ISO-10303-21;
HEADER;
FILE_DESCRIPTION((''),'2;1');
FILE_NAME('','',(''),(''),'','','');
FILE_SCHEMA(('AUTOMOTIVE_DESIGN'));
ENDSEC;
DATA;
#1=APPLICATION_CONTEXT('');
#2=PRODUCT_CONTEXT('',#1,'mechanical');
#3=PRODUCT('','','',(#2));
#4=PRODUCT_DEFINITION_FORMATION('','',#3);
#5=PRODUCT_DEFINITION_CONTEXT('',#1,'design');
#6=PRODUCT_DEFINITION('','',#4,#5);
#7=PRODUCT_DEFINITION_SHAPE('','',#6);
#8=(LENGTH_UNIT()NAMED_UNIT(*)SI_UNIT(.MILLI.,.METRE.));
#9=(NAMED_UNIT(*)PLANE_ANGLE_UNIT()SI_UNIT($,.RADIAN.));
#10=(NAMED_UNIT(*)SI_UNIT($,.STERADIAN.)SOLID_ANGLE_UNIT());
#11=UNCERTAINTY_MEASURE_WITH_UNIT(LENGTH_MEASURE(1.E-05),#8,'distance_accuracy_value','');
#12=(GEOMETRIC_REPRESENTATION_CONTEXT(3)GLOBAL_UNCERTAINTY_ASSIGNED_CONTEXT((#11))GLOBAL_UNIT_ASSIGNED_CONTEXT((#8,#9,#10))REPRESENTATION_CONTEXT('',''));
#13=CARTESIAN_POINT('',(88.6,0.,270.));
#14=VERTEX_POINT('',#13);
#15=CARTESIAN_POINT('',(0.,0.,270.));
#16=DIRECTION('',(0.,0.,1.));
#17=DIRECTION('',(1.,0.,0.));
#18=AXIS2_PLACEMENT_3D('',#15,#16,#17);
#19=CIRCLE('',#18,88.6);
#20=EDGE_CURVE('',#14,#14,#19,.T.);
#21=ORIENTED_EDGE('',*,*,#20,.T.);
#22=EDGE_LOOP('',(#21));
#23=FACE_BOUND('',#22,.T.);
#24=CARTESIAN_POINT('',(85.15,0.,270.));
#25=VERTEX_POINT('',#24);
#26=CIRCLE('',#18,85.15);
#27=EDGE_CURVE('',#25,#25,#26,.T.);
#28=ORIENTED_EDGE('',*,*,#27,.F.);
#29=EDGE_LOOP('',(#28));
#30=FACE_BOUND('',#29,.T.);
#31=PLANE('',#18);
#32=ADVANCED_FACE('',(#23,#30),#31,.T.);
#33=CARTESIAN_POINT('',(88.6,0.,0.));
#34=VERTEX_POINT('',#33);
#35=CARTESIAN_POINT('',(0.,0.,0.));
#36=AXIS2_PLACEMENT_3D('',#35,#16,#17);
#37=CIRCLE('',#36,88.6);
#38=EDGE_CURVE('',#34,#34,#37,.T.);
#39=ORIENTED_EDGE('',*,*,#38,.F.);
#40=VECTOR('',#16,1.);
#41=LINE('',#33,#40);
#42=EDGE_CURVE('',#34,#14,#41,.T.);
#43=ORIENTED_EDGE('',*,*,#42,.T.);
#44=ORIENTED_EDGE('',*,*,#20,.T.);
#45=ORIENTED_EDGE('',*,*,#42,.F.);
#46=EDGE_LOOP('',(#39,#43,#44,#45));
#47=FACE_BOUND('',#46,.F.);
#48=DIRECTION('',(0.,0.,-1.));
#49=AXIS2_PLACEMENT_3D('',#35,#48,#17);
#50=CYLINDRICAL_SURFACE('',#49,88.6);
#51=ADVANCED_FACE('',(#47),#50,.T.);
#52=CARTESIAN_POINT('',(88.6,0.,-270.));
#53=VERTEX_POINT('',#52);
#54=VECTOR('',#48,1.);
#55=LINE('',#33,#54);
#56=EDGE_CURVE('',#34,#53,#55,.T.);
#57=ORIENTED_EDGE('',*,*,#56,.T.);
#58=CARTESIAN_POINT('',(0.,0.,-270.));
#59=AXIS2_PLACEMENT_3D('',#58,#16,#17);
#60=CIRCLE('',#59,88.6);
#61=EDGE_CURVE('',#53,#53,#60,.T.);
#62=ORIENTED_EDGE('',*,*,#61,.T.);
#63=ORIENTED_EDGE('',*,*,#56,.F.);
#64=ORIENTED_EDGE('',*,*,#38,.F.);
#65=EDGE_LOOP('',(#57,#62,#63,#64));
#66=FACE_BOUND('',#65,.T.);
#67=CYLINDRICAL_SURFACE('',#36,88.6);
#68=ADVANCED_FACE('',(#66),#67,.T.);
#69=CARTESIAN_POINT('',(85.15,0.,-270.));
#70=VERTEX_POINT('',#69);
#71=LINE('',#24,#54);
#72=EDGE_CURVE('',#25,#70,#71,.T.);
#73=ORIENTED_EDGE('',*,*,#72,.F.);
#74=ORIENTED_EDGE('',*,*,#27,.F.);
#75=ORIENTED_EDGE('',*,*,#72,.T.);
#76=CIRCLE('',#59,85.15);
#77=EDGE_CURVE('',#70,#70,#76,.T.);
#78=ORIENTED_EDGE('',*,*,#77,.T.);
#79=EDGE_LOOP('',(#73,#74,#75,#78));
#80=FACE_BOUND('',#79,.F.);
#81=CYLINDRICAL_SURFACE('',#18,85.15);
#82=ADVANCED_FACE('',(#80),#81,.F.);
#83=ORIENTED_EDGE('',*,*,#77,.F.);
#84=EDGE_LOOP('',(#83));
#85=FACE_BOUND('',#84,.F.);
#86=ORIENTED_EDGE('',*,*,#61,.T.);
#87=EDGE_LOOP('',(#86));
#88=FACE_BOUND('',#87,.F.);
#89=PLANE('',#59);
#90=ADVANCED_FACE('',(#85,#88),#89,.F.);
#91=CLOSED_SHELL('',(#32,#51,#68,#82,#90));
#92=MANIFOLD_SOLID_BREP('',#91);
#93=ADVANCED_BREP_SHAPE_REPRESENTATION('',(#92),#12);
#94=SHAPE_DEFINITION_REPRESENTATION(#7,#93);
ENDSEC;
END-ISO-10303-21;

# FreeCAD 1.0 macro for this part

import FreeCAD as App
import Part
import Sketcher
Q = App.Units.Quantity

doc = App.newDocument("Part")
params = doc.addObject("Spreadsheet::Sheet", "Params")
for row, (alias, value) in enumerate([
    ("sketch1_diameter", "177.2 mm"),
    ("pad1_length", "540 mm"),
    ("sketch2_diameter", "170.3 mm"),
], start=1):
    params.set(f"A{row}", alias)
    params.set(f"B{row}", "=" + value)
    params.setAlias(f"B{row}", alias)

body = doc.addObject("PartDesign::Body", "Body")

# Sketch on XY plane
sketch1 = body.newObject("Sketcher::SketchObject", "Sketch")
sketch1.AttachmentSupport = (doc.getObject("XY_Plane"), [""])
sketch1.MapMode = "FlatFace"
sketch1.addGeometry(Part.Circle(App.Vector(0, 0, 0), App.Vector(0, 0, 1), 89), False)
sketch1.addConstraint([
    Sketcher.Constraint("Coincident", 0, 3, -1, 1),
    Sketcher.Constraint("Diameter", 0, Q("177.2 mm")),
])
sketch1.setExpression("Constraints[1]", "Params.sketch1_diameter")
pad1 = body.newObject("PartDesign::Pad", "Pad")
pad1.Profile = sketch1
pad1.setExpression("Length", "Params.pad1_length")
pad1.Midplane = True

# Sketch on XY plane
sketch2 = body.newObject("Sketcher::SketchObject", "Sketch001")
sketch2.AttachmentSupport = (doc.getObject("XY_Plane"), [""])
sketch2.MapMode = "FlatFace"
sketch2.AttachmentOffset = App.Placement(App.Vector(0, 0, 270), App.Rotation())
sketch2.addGeometry(Part.Circle(App.Vector(0, 0, 0), App.Vector(0, 0, 1), 85), False)
sketch2.addConstraint([
    Sketcher.Constraint("Coincident", 0, 3, -1, 1),
    Sketcher.Constraint("Diameter", 0, Q("170.3 mm")),
])
sketch2.setExpression("Constraints[1]", "Params.sketch2_diameter")
pocket1 = body.newObject("PartDesign::Pocket", "Pocket")
pocket1.Profile = sketch2
pocket1.Type = "ThroughAll"

doc.recompute()
